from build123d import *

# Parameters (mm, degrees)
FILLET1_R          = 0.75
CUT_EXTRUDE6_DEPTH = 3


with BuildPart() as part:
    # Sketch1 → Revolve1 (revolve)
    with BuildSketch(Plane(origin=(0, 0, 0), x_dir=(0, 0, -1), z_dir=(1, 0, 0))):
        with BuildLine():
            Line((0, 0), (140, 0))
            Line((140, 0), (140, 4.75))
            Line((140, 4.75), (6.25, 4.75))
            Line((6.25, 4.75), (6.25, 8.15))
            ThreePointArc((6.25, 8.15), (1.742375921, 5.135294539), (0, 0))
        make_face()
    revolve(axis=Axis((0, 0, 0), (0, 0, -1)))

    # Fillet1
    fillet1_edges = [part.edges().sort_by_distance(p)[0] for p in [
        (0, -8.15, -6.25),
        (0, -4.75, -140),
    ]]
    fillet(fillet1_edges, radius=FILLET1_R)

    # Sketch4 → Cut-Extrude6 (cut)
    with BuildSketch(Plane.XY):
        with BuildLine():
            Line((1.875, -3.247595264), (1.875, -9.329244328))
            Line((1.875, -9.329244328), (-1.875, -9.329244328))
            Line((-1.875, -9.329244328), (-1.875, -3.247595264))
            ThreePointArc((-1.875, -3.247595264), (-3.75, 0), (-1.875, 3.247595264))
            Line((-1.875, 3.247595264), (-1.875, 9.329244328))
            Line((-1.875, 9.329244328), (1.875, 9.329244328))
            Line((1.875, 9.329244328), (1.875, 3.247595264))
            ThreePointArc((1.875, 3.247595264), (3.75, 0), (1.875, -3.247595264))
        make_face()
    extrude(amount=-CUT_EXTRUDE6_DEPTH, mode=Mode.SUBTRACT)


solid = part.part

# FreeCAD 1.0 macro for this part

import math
import FreeCAD as App
import Part
import Sketcher

V = App.Vector


def edges_at(feature, points):
    """Names of the edges that pass closest to the given points."""
    edges = feature.Shape.Edges
    near = lambda p: min(range(len(edges)), key=lambda i: edges[i].distToShape(Part.Vertex(*p))[0])
    return sorted({f"Edge{near(p) + 1}" for p in points})

doc = App.newDocument("Part")
params = doc.addObject("Spreadsheet::Sheet", "Params")
for row, (alias, value) in enumerate([
    ("sketch1_height", "140 mm"),
    ("sketch1_width", "3.4 mm"),
    ("sketch1_width2", "4.75 mm"),
    ("sketch1_height2", "133.75 mm"),
    ("revolution_angle", "360 deg"),
    ("fillet_radius", "0.75 mm"),
    ("sketch2_radius", "3.75 mm"),
    ("sketch2_width", "3.75 mm"),
    ("pocket1_length", "3 mm"),
], start=1):
    params.set(f"A{row}", alias)
    params.set(f"B{row}", "=" + value)
    params.setAlias(f"B{row}", alias)

body = doc.addObject("PartDesign::Body", "Body")

sketch1 = body.newObject("Sketcher::SketchObject", "Sketch")
sketch1.AttachmentSupport = (doc.getObject("YZ_Plane"), [""])
sketch1.MapMode = "FlatFace"
sketch1.addGeometry([
    Part.LineSegment(V(0, 0, 0), V(0, -140, 0)),
    Part.LineSegment(V(0, -140, 0), V(4.75, -140, 0)),
    Part.LineSegment(V(4.75, -140, 0), V(4.75, -6.25, 0)),
    Part.LineSegment(V(4.75, -6.25, 0), V(8.15, -6.25, 0)),
    Part.ArcOfCircle(Part.Circle(V(0, -8.4388, 0), V(0, 0, 1), 8.4388), math.radians(15.032883), math.radians(90)),
], False)
sketch1.addConstraint([
    Sketcher.Constraint("Coincident", 0, 2, 1, 1),
    Sketcher.Constraint("Coincident", 1, 2, 2, 1),
    Sketcher.Constraint("Coincident", 2, 2, 3, 1),
    Sketcher.Constraint("Coincident", 3, 2, 4, 1),
    Sketcher.Constraint("Coincident", 4, 2, 0, 1),
    Sketcher.Constraint("Vertical", 0),
    Sketcher.Constraint("Horizontal", 1),
    Sketcher.Constraint("Vertical", 2),
    Sketcher.Constraint("Horizontal", 3),
    Sketcher.Constraint("Coincident", 4, 2, -1, 1),
    Sketcher.Constraint("PointOnObject", 4, 3, -2),
    Sketcher.Constraint("DistanceY", 0, 2, 0, 1, 140.0),
    Sketcher.Constraint("DistanceX", 3, 1, 3, 2, 3.4),
    Sketcher.Constraint("DistanceX", 1, 1, 1, 2, 4.75),
    Sketcher.Constraint("DistanceY", 2, 1, 2, 2, 133.75),
])
sketch1.setExpression("Constraints[11]", "Params.sketch1_height")
sketch1.setExpression("Constraints[12]", "Params.sketch1_width")
sketch1.setExpression("Constraints[13]", "Params.sketch1_width2")
sketch1.setExpression("Constraints[14]", "Params.sketch1_height2")
revolution = body.newObject("PartDesign::Revolution", "Revolution")
revolution.Profile = sketch1
revolution.ReferenceAxis = (sketch1, ["V_Axis"])
revolution.setExpression("Angle", "Params.revolution_angle")
doc.recompute()

fillet = body.newObject("PartDesign::Fillet", "Fillet")
fillet.Base = (revolution, edges_at(revolution, [(0, -8.15, -6.25), (0, -4.75, -140)]))
fillet.setExpression("Radius", "Params.fillet_radius")

sketch2 = body.newObject("Sketcher::SketchObject", "Sketch001")
sketch2.AttachmentSupport = (doc.getObject("XY_Plane"), [""])
sketch2.MapMode = "FlatFace"
sketch2.addGeometry([
    Part.LineSegment(V(1.875, -9.329244, 0), V(1.875, -3.247595, 0)),
    Part.ArcOfCircle(Part.Circle(V(0, 0, 0), V(0, 0, 1), 3.75), math.radians(-60), math.radians(60)),
    Part.LineSegment(V(1.875, 3.247595, 0), V(1.875, 9.329244, 0)),
    Part.LineSegment(V(1.875, 9.329244, 0), V(-1.875, 9.329244, 0)),
    Part.LineSegment(V(-1.875, 9.329244, 0), V(-1.875, 3.247595, 0)),
    Part.ArcOfCircle(Part.Circle(V(0, 0, 0), V(0, 0, 1), 3.75), math.radians(120), math.radians(240)),
    Part.LineSegment(V(-1.875, -3.247595, 0), V(-1.875, -9.329244, 0)),
    Part.LineSegment(V(-1.875, -9.329244, 0), V(1.875, -9.329244, 0)),
], False)
sketch2.addConstraint([
    Sketcher.Constraint("Coincident", 0, 2, 1, 1),
    Sketcher.Constraint("Coincident", 1, 2, 2, 1),
    Sketcher.Constraint("Coincident", 2, 2, 3, 1),
    Sketcher.Constraint("Coincident", 3, 2, 4, 1),
    Sketcher.Constraint("Coincident", 4, 2, 5, 1),
    Sketcher.Constraint("Coincident", 5, 2, 6, 1),
    Sketcher.Constraint("Coincident", 6, 2, 7, 1),
    Sketcher.Constraint("Coincident", 7, 2, 0, 1),
    Sketcher.Constraint("Vertical", 0),
    Sketcher.Constraint("Vertical", 2),
    Sketcher.Constraint("Horizontal", 3),
    Sketcher.Constraint("Vertical", 4),
    Sketcher.Constraint("Vertical", 6),
    Sketcher.Constraint("Horizontal", 7),
    Sketcher.Constraint("Coincident", 1, 3, -1, 1),
    Sketcher.Constraint("Coincident", 5, 3, -1, 1),
    Sketcher.Constraint("Equal", 1, 5),
    Sketcher.Constraint("Symmetric", 2, 2, 6, 2, -1, 1),
    Sketcher.Constraint("Horizontal", 1, 2, 4, 2),
    Sketcher.Constraint("Horizontal", 0, 2, 5, 2),
    Sketcher.Constraint("Radius", 1, 3.75),
    Sketcher.Constraint("DistanceX", 3, 2, 3, 1, 3.75),
    Sketcher.Constraint("DistanceY", 0, 1, 0, 2, 6.081649),
])
sketch2.setExpression("Constraints[20]", "Params.sketch2_radius")
sketch2.setExpression("Constraints[21]", "Params.sketch2_width")
pocket1 = body.newObject("PartDesign::Pocket", "Pocket")
pocket1.Profile = sketch2
pocket1.setExpression("Length", "Params.pocket1_length")

doc.recompute()
